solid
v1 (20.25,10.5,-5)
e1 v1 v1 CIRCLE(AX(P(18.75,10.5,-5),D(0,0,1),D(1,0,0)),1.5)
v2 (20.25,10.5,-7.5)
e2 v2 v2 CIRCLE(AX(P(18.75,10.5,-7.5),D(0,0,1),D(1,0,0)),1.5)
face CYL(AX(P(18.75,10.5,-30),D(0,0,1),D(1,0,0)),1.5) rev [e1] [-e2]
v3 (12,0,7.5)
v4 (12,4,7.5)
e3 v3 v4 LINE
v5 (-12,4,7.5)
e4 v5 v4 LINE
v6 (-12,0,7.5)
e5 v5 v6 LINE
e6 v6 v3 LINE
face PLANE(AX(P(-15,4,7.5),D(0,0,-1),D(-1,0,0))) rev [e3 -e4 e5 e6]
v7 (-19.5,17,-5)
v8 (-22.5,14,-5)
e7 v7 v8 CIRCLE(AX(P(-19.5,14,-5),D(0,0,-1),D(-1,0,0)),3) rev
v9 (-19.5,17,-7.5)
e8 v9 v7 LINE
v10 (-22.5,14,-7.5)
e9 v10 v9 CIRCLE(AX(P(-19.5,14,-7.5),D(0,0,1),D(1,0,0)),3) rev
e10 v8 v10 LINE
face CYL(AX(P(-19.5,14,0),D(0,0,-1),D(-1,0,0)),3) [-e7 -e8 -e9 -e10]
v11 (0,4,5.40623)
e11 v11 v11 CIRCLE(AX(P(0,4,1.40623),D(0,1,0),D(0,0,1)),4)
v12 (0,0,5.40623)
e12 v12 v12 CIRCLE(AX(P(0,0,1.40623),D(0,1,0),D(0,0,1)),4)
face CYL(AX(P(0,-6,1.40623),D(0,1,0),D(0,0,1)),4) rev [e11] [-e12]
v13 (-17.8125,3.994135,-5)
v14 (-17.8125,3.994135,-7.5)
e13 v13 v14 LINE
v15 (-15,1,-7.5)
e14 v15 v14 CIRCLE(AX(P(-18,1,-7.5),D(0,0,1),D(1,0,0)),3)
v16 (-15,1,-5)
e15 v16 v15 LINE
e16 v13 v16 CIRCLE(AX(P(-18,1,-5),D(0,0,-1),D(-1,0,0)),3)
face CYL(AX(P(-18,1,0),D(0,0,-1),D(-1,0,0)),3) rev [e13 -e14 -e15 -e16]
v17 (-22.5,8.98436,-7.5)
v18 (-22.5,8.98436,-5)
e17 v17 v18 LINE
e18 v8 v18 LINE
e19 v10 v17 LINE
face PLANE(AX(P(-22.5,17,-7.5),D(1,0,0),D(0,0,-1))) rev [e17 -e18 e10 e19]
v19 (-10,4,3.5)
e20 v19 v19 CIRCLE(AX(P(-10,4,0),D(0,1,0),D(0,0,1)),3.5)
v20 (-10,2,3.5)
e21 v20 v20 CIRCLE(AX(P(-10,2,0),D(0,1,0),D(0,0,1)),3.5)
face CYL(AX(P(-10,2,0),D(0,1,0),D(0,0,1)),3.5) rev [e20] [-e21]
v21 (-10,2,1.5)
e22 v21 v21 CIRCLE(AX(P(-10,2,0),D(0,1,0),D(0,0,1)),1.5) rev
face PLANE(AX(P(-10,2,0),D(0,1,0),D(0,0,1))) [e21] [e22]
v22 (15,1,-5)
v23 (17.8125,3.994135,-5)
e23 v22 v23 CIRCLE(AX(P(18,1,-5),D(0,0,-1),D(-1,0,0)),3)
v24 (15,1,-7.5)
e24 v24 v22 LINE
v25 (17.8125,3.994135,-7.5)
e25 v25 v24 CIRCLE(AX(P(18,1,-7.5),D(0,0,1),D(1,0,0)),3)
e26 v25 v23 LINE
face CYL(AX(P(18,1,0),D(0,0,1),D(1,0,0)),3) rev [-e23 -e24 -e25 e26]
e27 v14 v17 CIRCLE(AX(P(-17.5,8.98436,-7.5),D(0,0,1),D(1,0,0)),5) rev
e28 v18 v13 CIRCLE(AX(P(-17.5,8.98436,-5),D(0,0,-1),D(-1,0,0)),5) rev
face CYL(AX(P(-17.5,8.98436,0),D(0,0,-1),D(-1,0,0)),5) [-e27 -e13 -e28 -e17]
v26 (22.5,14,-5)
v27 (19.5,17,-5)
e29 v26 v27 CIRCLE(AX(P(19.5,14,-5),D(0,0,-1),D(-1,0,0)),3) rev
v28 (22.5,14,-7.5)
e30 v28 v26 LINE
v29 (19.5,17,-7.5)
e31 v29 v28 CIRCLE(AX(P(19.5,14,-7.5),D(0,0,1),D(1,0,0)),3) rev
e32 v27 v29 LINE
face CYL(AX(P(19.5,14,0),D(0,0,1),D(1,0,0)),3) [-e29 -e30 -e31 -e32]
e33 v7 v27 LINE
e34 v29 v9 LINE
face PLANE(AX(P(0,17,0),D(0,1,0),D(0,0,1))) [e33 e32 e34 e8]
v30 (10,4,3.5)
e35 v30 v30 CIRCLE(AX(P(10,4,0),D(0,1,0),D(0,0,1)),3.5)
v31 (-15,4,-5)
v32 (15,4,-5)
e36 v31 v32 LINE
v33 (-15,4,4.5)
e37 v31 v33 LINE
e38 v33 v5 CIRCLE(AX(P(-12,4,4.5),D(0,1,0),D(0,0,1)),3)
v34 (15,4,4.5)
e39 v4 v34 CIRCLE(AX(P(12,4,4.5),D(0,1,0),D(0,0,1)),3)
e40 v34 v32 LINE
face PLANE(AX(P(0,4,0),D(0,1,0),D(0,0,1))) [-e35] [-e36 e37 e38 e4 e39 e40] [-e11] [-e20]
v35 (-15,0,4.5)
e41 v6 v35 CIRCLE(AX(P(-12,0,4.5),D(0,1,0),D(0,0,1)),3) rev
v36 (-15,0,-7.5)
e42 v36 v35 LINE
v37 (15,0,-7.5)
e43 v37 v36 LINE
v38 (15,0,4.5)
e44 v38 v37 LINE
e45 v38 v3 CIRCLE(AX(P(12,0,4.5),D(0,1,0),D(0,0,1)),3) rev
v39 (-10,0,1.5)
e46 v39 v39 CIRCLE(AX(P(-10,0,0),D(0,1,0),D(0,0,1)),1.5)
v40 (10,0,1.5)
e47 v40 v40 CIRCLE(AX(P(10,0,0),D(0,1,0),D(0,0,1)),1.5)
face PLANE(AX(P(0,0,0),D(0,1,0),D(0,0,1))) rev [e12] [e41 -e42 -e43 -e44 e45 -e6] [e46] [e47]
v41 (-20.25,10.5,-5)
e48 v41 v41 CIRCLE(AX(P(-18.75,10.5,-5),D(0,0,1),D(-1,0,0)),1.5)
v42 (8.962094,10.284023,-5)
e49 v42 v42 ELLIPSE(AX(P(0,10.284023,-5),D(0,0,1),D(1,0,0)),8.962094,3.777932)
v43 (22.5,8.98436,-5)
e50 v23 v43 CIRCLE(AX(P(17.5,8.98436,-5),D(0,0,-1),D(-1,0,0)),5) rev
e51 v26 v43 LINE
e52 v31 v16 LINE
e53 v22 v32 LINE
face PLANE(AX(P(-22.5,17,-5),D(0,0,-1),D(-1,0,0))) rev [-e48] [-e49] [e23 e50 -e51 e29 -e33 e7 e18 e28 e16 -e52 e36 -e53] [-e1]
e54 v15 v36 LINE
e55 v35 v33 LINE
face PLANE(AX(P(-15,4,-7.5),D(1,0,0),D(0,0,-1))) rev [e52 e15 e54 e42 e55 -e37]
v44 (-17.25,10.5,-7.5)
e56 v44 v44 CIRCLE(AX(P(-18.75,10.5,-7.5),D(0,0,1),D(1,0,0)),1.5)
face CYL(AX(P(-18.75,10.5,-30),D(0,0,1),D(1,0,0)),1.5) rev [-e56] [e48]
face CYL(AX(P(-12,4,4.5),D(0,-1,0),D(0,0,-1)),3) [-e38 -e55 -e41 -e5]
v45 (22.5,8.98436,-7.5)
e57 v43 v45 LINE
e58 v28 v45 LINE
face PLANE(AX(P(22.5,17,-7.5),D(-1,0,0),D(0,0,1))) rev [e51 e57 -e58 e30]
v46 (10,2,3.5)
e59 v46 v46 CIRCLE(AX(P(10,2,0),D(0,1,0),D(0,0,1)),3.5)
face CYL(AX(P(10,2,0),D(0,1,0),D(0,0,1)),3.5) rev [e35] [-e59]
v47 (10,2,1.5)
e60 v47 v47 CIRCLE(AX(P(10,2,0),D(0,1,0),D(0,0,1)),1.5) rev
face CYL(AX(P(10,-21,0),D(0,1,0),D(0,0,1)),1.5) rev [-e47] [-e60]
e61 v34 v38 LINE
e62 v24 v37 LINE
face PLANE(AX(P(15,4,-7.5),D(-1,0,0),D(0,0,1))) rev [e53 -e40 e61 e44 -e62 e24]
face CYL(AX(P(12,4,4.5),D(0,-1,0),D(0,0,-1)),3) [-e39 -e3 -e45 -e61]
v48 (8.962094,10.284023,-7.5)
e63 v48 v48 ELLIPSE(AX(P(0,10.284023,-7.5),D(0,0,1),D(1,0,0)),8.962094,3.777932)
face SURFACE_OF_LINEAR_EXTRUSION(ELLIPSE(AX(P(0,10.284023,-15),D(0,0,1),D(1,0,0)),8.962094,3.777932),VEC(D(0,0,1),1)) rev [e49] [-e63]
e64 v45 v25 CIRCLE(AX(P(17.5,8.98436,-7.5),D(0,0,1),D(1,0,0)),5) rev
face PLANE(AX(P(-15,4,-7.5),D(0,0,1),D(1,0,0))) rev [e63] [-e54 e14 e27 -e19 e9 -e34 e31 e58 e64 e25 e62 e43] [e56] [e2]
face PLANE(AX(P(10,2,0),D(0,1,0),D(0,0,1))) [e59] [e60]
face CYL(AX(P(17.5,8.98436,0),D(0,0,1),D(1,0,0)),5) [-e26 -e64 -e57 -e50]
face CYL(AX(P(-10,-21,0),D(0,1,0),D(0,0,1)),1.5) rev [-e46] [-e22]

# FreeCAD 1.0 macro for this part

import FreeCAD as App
import Part
import Sketcher

V = App.Vector


def edges_at(feature, points):
    """Names of the edges that pass closest to the given points."""
    edges = feature.Shape.Edges
    near = lambda p: min(range(len(edges)), key=lambda i: edges[i].distToShape(Part.Vertex(*p))[0])
    return sorted({f"Edge{near(p) + 1}" for p in points})

doc = App.newDocument("Part")
body = doc.addObject("PartDesign::Body", "Body")

# Sketch on XZ plane
sketch1 = doc.addObject("Sketcher::SketchObject", "Sketch")
body.addObject(sketch1)
sketch1.AttachmentSupport = (doc.XZ_Plane, [""])
sketch1.MapMode = "FlatFace"
sketch1.addGeometry(Part.LineSegment(V(-15, -8, 0), V(-15, 8, 0)), False)
sketch1.addGeometry(Part.LineSegment(V(-15, 8, 0), V(15, 8, 0)), False)
sketch1.addGeometry(Part.LineSegment(V(15, 8, 0), V(15, -8, 0)), False)
sketch1.addGeometry(Part.LineSegment(V(15, -8, 0), V(-15, -8, 0)), False)
sketch1.addConstraint(Sketcher.Constraint("Coincident", 0, 2, 1, 1))
sketch1.addConstraint(Sketcher.Constraint("Coincident", 1, 2, 2, 1))
sketch1.addConstraint(Sketcher.Constraint("Coincident", 2, 2, 3, 1))
sketch1.addConstraint(Sketcher.Constraint("Coincident", 3, 2, 0, 1))
sketch1.addConstraint(Sketcher.Constraint("Vertical", 0))
sketch1.addConstraint(Sketcher.Constraint("Horizontal", 1))
sketch1.addConstraint(Sketcher.Constraint("Vertical", 2))
sketch1.addConstraint(Sketcher.Constraint("Horizontal", 3))
sketch1.addConstraint(Sketcher.Constraint("Symmetric", 0, 2, 2, 2, -1, 1))
sketch1.addConstraint(Sketcher.Constraint("DistanceX", 1, 1, 1, 2, 30.0))
sketch1.addConstraint(Sketcher.Constraint("DistanceY", 0, 1, 0, 2, 15.0))
pad1 = doc.addObject("PartDesign::Pad", "Pad")
body.addObject(pad1)
pad1.Profile = sketch1
pad1.Length = 4
pad1.Reversed = True

# Sketch on XZ plane
sketch2 = doc.addObject("Sketcher::SketchObject", "Sketch001")
body.addObject(sketch2)
sketch2.AttachmentSupport = (doc.XZ_Plane, [""])
sketch2.MapMode = "FlatFace"
sketch2.AttachmentOffset = App.Placement(V(0, 0, -4), App.Rotation())
sketch2.addGeometry(Part.LineSegment(V(-22.5, -7.5, 0), V(-22.5, -5, 0)), False)
sketch2.addGeometry(Part.LineSegment(V(-22.5, -5, 0), V(22.5, -5, 0)), False)
sketch2.addGeometry(Part.LineSegment(V(22.5, -5, 0), V(22.5, -7.5, 0)), False)
sketch2.addGeometry(Part.LineSegment(V(22.5, -7.5, 0), V(-22.5, -7.5, 0)), False)
sketch2.addConstraint(Sketcher.Constraint("Coincident", 0, 2, 1, 1))
sketch2.addConstraint(Sketcher.Constraint("Coincident", 1, 2, 2, 1))
sketch2.addConstraint(Sketcher.Constraint("Coincident", 2, 2, 3, 1))
sketch2.addConstraint(Sketcher.Constraint("Coincident", 3, 2, 0, 1))
sketch2.addConstraint(Sketcher.Constraint("Vertical", 0))
sketch2.addConstraint(Sketcher.Constraint("Horizontal", 1))
sketch2.addConstraint(Sketcher.Constraint("Vertical", 2))
sketch2.addConstraint(Sketcher.Constraint("Horizontal", 3))
sketch2.addConstraint(Sketcher.Constraint("DistanceX", 1, 1, 1, 2, 45.0))
sketch2.addConstraint(Sketcher.Constraint("DistanceY", 0, 1, 0, 2, 2.5))
sketch2.addConstraint(Sketcher.Constraint("DistanceY", 0, 2, -1, 1, 5.0))
sketch2.addConstraint(Sketcher.Constraint("DistanceX", 0, 2, -1, 1, 22.5))
pad2 = doc.addObject("PartDesign::Pad", "Pad001")
body.addObject(pad2)
pad2.Profile = sketch2
pad2.Length = 13
pad2.Reversed = True

# Sketch on XY plane
sketch3 = doc.addObject("Sketcher::SketchObject", "Sketch002")
body.addObject(sketch3)
sketch3.AttachmentSupport = (doc.XY_Plane, [""])
sketch3.MapMode = "FlatFace"
sketch3.AttachmentOffset = App.Placement(V(0, 0, -5), App.Rotation())
sketch3.addGeometry(Part.Circle(V(18.8, 10.5, 0), V(0, 0, 1), 1.5), False)
sketch3.addGeometry(Part.Circle(V(-18.8, 10.5, 0), V(0, 0, 1), 1.5), False)
sketch3.addConstraint(Sketcher.Constraint("Equal", 0, 1))
sketch3.addConstraint(Sketcher.Constraint("Symmetric", 0, 3, 1, 3, -2))
sketch3.addConstraint(Sketcher.Constraint("Diameter", 0, 3.0))
sketch3.addConstraint(Sketcher.Constraint("DistanceY", -1, 1, 0, 3, 10.5))
sketch3.addConstraint(Sketcher.Constraint("DistanceX", 1, 3, 0, 3, 37.5))
pocket1 = doc.addObject("PartDesign::Pocket", "Pocket")
body.addObject(pocket1)
pocket1.Profile = sketch3
pocket1.Length = 25
doc.recompute()

fillet = doc.addObject("PartDesign::Fillet", "Fillet")
body.addObject(fillet)
fillet.Base = (pocket1, edges_at(pocket1, [
    (-15, 2, 7.5),
    (15, 2, 7.5),
    (15, 4, -6.25),
    (-15, 4, -6.25),
    (-22.5, 17, -6.25),
    (22.5, 17, -6.25),
]))
fillet.Radius = 3

# Sketch on XZ plane
sketch4 = doc.addObject("Sketcher::SketchObject", "Sketch003")
body.addObject(sketch4)
sketch4.AttachmentSupport = (doc.XZ_Plane, [""])
sketch4.MapMode = "FlatFace"
sketch4.AttachmentOffset = App.Placement(V(0, 0, -4), App.Rotation())
sketch4.addGeometry(Part.Circle(V(10, 0, 0), V(0, 0, 1), 1.5), False)
sketch4.addGeometry(Part.Circle(V(-10, 0, 0), V(0, 0, 1), 1.5), False)
sketch4.addConstraint(Sketcher.Constraint("Equal", 0, 1))
sketch4.addConstraint(Sketcher.Constraint("Symmetric", 0, 3, 1, 3, -1, 1))
sketch4.addConstraint(Sketcher.Constraint("PointOnObject", 0, 3, -1))
sketch4.addConstraint(Sketcher.Constraint("Diameter", 0, 3.0))
sketch4.addConstraint(Sketcher.Constraint("DistanceX", -1, 1, 0, 3, 10.0))
pocket2 = doc.addObject("PartDesign::Pocket", "Pocket001")
body.addObject(pocket2)
pocket2.Profile = sketch4
pocket2.Length = 25
pocket2.Reversed = True

# Sketch on XZ plane
sketch5 = doc.addObject("Sketcher::SketchObject", "Sketch004")
body.addObject(sketch5)
sketch5.AttachmentSupport = (doc.XZ_Plane, [""])
sketch5.MapMode = "FlatFace"
sketch5.AttachmentOffset = App.Placement(V(0, 0, -4), App.Rotation())
sketch5.addGeometry(Part.Circle(V(10, 0, 0), V(0, 0, 1), 3.5), False)
sketch5.addGeometry(Part.Circle(V(-10, 0, 0), V(0, 0, 1), 3.5), False)
sketch5.addConstraint(Sketcher.Constraint("Equal", 0, 1))
sketch5.addConstraint(Sketcher.Constraint("Symmetric", 0, 3, 1, 3, -1, 1))
sketch5.addConstraint(Sketcher.Constraint("PointOnObject", 0, 3, -1))
sketch5.addConstraint(Sketcher.Constraint("Diameter", 0, 7.0))
sketch5.addConstraint(Sketcher.Constraint("DistanceX", -1, 1, 0, 3, 10.0))
pocket3 = doc.addObject("PartDesign::Pocket", "Pocket002")
body.addObject(pocket3)
pocket3.Profile = sketch5
pocket3.Length = 2
pocket3.Reversed = True
doc.recompute()

fillet2 = doc.addObject("PartDesign::Fillet", "Fillet001")
body.addObject(fillet2)
fillet2.Base = (pocket3, edges_at(pocket3, [(-22.5, 4, -6.25), (22.5, 4, -6.25)]))
fillet2.Radius = 5

# Sketch on XY plane
sketch6 = doc.addObject("Sketcher::SketchObject", "Sketch005")
body.addObject(sketch6)
sketch6.AttachmentSupport = (doc.XY_Plane, [""])
sketch6.MapMode = "FlatFace"
sketch6.AttachmentOffset = App.Placement(V(0, 0, -5), App.Rotation())
sketch6.addGeometry(Part.Ellipse(V(8.962094, 10.284023, 0), V(0, 14.061955, 0), V(0, 10.284023, 0)), False)
sketch6.addConstraint(Sketcher.Constraint("Block", 0))
pocket4 = doc.addObject("PartDesign::Pocket", "Pocket003")
body.addObject(pocket4)
pocket4.Profile = sketch6
pocket4.Length = 10

# Sketch on XZ plane
sketch7 = doc.addObject("Sketcher::SketchObject", "Sketch006")
body.addObject(sketch7)
sketch7.AttachmentSupport = (doc.XZ_Plane, [""])
sketch7.MapMode = "FlatFace"
sketch7.AttachmentOffset = App.Placement(V(0, 0, -4), App.Rotation())
sketch7.addGeometry(Part.Circle(V(0, 1.4, 0), V(0, 0, 1), 4), False)
sketch7.addConstraint(Sketcher.Constraint("PointOnObject", 0, 3, -2))
sketch7.addConstraint(Sketcher.Constraint("Diameter", 0, 8.0))
sketch7.addConstraint(Sketcher.Constraint("DistanceY", -1, 1, 0, 3, 1.40623))
pocket5 = doc.addObject("PartDesign::Pocket", "Pocket004")
body.addObject(pocket5)
pocket5.Profile = sketch7
pocket5.Length = 10
pocket5.Reversed = True

doc.recompute()
